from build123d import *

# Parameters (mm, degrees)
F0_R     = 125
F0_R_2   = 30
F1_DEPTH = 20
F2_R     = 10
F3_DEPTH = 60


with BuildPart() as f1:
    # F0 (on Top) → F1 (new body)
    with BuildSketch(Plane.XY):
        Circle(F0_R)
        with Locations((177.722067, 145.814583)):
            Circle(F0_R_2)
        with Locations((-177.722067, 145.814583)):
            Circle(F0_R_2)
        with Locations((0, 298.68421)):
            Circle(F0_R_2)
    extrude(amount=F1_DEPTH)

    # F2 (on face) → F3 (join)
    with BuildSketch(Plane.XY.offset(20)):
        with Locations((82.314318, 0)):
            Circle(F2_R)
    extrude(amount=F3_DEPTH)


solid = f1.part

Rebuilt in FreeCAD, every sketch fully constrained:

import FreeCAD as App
import Part
import Sketcher

doc = App.newDocument("Part")
body = doc.addObject("PartDesign::Body", "Body")
body.AllowCompound = True

# Sketch on XY plane
sketch1 = body.newObject("Sketcher::SketchObject", "Sketch")
sketch1.AttachmentSupport = (doc.getObject("XY_Plane"), [""])
sketch1.MapMode = "FlatFace"
sketch1.addGeometry([
    Part.Circle(App.Vector(0, 0, 0), App.Vector(0, 0, 1), 125),
    Part.Circle(App.Vector(178, 146, 0), App.Vector(0, 0, 1), 30),
    Part.Circle(App.Vector(-178, 146, 0), App.Vector(0, 0, 1), 30),
    Part.Circle(App.Vector(0, 299, 0), App.Vector(0, 0, 1), 30),
], False)
sketch1.addConstraint([
    Sketcher.Constraint("Coincident", 0, 3, -1, 1),
    Sketcher.Constraint("Equal", 1, 2),
    Sketcher.Constraint("Equal", 2, 3),
    Sketcher.Constraint("Symmetric", 1, 3, 2, 3, -2),
    Sketcher.Constraint("PointOnObject", 3, 3, -2),
    Sketcher.Constraint("Diameter", 0, 250.0),
    Sketcher.Constraint("Diameter", 1, 60.0),
    Sketcher.Constraint("DistanceY", -1, 1, 3, 3, 298.68421),
    Sketcher.Constraint("DistanceX", -1, 1, 1, 3, 177.722067),
    Sketcher.Constraint("DistanceY", -1, 1, 1, 3, 145.814583),
])
pad1 = body.newObject("PartDesign::Pad", "Pad")
pad1.Profile = sketch1
pad1.Length = 20

# Sketch on XY plane
sketch2 = body.newObject("Sketcher::SketchObject", "Sketch001")
sketch2.AttachmentSupport = (doc.getObject("XY_Plane"), [""])
sketch2.MapMode = "FlatFace"
sketch2.AttachmentOffset = App.Placement(App.Vector(0, 0, 20), App.Rotation())
sketch2.addGeometry(Part.Circle(App.Vector(82, 0, 0), App.Vector(0, 0, 1), 10), False)
sketch2.addConstraint([
    Sketcher.Constraint("PointOnObject", 0, 3, -1),
    Sketcher.Constraint("Diameter", 0, 20.0),
    Sketcher.Constraint("DistanceX", -1, 1, 0, 3, 82.314318),
])
pad2 = body.newObject("PartDesign::Pad", "Pad001")
pad2.Profile = sketch2
pad2.Length = 60

doc.recompute()
